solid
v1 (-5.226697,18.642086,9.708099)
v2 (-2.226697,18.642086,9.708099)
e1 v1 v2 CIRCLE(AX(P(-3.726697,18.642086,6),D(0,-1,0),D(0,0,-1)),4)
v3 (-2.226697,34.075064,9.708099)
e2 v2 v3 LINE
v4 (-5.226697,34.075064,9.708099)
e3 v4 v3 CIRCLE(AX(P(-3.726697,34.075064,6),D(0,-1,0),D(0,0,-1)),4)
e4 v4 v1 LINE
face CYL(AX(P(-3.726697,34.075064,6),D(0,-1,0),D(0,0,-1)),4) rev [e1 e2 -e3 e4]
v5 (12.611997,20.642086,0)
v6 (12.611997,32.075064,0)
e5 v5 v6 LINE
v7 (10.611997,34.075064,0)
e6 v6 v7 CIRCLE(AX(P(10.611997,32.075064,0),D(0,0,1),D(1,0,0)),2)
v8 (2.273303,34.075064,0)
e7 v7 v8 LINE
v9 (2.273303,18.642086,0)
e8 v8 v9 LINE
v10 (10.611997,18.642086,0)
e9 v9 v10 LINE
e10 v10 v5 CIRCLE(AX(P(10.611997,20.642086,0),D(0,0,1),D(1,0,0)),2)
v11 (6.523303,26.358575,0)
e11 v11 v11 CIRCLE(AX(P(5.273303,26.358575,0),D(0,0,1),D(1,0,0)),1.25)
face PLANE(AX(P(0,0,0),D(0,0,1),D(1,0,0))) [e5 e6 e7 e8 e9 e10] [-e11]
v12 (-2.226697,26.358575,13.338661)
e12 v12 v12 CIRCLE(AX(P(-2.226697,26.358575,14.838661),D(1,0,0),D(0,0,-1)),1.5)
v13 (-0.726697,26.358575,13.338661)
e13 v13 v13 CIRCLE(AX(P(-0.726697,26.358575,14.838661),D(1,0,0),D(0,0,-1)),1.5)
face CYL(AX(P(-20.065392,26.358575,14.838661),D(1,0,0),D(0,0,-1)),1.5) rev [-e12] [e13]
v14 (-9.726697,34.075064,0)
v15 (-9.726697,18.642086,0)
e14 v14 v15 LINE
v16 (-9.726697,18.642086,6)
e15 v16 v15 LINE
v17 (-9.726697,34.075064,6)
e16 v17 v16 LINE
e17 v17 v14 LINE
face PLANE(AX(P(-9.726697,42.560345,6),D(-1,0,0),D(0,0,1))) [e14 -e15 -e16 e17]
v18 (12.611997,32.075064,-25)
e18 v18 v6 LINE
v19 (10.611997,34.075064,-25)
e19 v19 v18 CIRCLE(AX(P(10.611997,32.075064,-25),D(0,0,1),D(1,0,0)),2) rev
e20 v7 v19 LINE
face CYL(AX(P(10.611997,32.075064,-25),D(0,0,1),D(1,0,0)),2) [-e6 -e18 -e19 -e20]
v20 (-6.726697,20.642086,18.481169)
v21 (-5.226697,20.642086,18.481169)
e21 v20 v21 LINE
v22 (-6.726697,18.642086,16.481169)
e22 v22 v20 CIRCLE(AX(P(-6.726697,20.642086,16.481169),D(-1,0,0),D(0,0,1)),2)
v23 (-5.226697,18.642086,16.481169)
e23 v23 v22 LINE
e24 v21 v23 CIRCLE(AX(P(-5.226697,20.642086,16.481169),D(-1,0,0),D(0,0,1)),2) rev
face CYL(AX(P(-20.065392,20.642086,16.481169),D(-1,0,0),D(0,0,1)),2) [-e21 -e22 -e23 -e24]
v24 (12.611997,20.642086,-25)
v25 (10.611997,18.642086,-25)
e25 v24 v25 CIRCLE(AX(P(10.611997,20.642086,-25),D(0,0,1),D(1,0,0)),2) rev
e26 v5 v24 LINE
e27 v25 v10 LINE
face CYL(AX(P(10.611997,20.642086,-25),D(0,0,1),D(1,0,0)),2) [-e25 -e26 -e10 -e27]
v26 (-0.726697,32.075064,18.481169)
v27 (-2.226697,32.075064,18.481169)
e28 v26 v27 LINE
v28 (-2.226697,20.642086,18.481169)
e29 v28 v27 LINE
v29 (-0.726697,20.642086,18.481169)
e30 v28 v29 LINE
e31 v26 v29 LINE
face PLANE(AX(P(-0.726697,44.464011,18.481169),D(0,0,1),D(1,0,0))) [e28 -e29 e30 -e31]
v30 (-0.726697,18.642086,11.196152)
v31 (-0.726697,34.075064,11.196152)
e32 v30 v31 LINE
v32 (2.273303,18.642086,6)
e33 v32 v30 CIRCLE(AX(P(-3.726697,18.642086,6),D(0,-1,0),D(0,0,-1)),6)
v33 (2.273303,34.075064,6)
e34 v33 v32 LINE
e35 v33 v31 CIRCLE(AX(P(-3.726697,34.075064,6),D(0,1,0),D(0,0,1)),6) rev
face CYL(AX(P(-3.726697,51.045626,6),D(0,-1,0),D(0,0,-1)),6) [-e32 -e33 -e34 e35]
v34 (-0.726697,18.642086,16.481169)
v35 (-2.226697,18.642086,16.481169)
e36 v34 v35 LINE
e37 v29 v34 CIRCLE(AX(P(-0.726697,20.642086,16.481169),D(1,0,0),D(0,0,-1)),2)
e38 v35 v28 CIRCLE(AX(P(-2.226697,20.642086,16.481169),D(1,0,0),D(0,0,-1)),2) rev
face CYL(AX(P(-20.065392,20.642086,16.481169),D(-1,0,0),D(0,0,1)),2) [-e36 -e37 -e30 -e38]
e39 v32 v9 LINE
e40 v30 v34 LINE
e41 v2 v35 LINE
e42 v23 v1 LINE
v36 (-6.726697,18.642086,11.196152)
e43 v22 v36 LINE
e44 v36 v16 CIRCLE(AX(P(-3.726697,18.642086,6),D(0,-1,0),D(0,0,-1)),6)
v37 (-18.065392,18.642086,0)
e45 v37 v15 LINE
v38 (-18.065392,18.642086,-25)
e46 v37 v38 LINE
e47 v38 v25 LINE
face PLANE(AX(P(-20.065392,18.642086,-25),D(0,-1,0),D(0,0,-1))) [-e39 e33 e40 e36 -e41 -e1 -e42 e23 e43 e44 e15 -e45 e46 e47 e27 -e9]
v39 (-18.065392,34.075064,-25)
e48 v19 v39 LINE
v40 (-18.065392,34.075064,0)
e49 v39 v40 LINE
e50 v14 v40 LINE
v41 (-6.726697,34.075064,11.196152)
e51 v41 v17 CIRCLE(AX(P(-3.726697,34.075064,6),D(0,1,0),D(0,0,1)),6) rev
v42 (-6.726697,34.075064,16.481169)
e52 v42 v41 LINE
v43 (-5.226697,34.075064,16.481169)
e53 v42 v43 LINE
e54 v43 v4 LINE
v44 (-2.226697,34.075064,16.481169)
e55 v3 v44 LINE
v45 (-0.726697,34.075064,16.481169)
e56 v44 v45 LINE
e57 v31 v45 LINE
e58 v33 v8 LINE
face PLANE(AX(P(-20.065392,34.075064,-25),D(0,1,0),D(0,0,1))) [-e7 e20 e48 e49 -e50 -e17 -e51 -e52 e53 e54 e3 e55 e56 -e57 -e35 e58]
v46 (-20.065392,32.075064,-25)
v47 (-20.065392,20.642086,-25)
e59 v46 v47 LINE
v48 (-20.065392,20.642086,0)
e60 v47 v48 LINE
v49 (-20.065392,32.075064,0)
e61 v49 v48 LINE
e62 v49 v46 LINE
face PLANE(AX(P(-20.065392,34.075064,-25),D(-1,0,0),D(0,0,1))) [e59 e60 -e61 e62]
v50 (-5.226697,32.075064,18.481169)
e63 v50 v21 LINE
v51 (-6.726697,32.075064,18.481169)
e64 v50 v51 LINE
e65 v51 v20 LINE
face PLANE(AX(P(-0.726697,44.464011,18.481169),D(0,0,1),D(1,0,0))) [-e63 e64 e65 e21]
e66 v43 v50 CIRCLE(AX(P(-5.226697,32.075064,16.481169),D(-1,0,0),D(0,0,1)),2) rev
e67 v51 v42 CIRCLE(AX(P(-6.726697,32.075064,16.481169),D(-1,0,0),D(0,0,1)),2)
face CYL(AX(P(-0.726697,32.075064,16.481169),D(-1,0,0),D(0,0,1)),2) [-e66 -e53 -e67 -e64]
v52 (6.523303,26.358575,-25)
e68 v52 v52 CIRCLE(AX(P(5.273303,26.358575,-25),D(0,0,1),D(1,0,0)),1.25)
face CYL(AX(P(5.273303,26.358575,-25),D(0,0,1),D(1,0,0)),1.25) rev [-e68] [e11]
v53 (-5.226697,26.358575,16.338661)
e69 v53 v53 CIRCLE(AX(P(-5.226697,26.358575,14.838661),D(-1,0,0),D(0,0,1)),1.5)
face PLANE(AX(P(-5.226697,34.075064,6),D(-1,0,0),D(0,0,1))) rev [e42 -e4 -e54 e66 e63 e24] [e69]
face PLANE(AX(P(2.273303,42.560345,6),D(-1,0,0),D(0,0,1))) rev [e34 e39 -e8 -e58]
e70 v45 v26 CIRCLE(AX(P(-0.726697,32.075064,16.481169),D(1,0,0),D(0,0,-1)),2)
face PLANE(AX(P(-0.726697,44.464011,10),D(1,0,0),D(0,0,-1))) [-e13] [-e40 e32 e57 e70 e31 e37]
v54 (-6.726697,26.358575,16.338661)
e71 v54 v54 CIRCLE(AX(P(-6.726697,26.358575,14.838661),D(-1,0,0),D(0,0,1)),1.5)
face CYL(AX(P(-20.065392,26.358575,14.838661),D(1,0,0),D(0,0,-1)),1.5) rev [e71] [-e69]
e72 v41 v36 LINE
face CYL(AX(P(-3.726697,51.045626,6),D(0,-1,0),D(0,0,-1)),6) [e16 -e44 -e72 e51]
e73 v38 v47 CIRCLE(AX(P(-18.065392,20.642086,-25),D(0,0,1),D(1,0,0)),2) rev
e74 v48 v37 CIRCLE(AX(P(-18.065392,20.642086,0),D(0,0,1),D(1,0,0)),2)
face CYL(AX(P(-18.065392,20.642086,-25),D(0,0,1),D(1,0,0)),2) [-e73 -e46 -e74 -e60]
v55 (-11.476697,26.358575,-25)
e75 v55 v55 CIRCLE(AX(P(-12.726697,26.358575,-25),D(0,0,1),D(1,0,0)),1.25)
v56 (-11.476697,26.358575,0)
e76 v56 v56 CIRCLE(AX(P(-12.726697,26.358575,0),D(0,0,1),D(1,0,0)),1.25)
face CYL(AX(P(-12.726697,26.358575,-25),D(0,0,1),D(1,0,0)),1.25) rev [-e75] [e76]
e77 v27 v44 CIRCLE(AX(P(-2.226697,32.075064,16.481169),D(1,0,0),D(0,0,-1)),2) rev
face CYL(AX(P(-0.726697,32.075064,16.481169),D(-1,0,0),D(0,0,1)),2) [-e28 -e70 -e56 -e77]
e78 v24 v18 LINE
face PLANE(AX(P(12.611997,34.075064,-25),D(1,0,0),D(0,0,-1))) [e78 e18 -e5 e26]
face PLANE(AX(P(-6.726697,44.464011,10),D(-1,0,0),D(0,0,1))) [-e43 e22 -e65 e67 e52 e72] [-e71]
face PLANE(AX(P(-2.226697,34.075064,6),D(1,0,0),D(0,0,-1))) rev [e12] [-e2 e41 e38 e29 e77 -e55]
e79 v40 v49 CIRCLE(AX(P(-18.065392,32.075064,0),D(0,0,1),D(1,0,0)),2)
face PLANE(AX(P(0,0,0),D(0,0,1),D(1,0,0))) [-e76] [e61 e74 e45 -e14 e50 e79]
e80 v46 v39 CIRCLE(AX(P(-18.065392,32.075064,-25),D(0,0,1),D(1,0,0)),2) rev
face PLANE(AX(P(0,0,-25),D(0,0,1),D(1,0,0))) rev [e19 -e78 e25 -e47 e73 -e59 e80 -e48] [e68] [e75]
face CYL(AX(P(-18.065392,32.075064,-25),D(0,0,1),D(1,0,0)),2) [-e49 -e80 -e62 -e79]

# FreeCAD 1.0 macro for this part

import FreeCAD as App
import Part
import Sketcher
from FreeCAD import Vector
Q = App.Units.Quantity


def edges_at(feature, points):
    """Names of the edges that pass closest to the given points."""
    edges = feature.Shape.Edges
    near = lambda p: min(range(len(edges)), key=lambda i: edges[i].distToShape(Part.Vertex(*p))[0])
    return sorted({f"Edge{near(p) + 1}" for p in points})

doc = App.newDocument("Part")
body = doc.addObject("PartDesign::Body", "Body")

sketch1 = body.newObject("Sketcher::SketchObject", "Sketch")
sketch1.AttachmentSupport = (doc.getObject("XY_Plane"), [""])
sketch1.MapMode = "FlatFace"
sketch1.addGeometry(Part.LineSegment(Vector(-20.065392, 34.075064, 0), Vector(-20.065392, 18.642086, 0)), False)
sketch1.addGeometry(Part.LineSegment(Vector(-20.065392, 18.642086, 0), Vector(12.611997, 18.642086, 0)), False)
sketch1.addGeometry(Part.LineSegment(Vector(12.611997, 18.642086, 0), Vector(12.611997, 34.075064, 0)), False)
sketch1.addGeometry(Part.LineSegment(Vector(12.611997, 34.075064, 0), Vector(-20.065392, 34.075064, 0)), False)
sketch1.addConstraint(Sketcher.Constraint("Coincident", 0, 2, 1, 1))
sketch1.addConstraint(Sketcher.Constraint("Coincident", 1, 2, 2, 1))
sketch1.addConstraint(Sketcher.Constraint("Coincident", 2, 2, 3, 1))
sketch1.addConstraint(Sketcher.Constraint("Coincident", 3, 2, 0, 1))
sketch1.addConstraint(Sketcher.Constraint("Vertical", 0))
sketch1.addConstraint(Sketcher.Constraint("Horizontal", 1))
sketch1.addConstraint(Sketcher.Constraint("Vertical", 2))
sketch1.addConstraint(Sketcher.Constraint("Horizontal", 3))
sketch1.addConstraint(Sketcher.Constraint("DistanceX", 1, 1, 1, 2, Q("32.677388 mm")))
sketch1.addConstraint(Sketcher.Constraint("DistanceY", 0, 2, 0, 1, Q("15.432978 mm")))
sketch1.addConstraint(Sketcher.Constraint("DistanceX", 0, 2, -1, 1, Q("20.065392 mm")))
sketch1.addConstraint(Sketcher.Constraint("DistanceY", -1, 1, 0, 2, Q("18.642086 mm")))
pad1 = body.newObject("PartDesign::Pad", "Pad")
pad1.Profile = sketch1
pad1.Length = 25
pad1.Reversed = True

sketch2 = body.newObject("Sketcher::SketchObject", "Sketch001")
sketch2.AttachmentSupport = (doc.getObject("XY_Plane"), [""])
sketch2.MapMode = "FlatFace"
sketch2.addGeometry(Part.Circle(Vector(-12.726697, 26.358575, 0), Vector(0, 0, 1), 1.25), False)
sketch2.addGeometry(Part.Circle(Vector(5.273303, 26.358575, 0), Vector(0, 0, 1), 1.25), False)
sketch2.addConstraint(Sketcher.Constraint("Equal", 0, 1))
sketch2.addConstraint(Sketcher.Constraint("Horizontal", 0, 3, 1, 3))
sketch2.addConstraint(Sketcher.Constraint("Diameter", 0, Q("2.5 mm")))
sketch2.addConstraint(Sketcher.Constraint("DistanceX", 0, 3, 1, 3, Q("18 mm")))
sketch2.addConstraint(Sketcher.Constraint("DistanceX", 0, 3, -1, 1, Q("12.726697 mm")))
sketch2.addConstraint(Sketcher.Constraint("DistanceY", -1, 1, 0, 3, Q("26.358575 mm")))
pocket1 = body.newObject("PartDesign::Pocket", "Pocket")
pocket1.Profile = sketch2
pocket1.Type = "ThroughAll"
body2 = doc.addObject("PartDesign::Body", "Body001")

sketch3 = body2.newObject("Sketcher::SketchObject", "Sketch002")
sketch3.AttachmentSupport = (doc.getObject("XZ_Plane001"), [""])
sketch3.MapMode = "FlatFace"
sketch3.AttachmentOffset = App.Placement(Vector(0, 0, -18.642086), App.Rotation())
sketch3.addGeometry(Part.Circle(Vector(-3.726697, 6, 0), Vector(0, 0, 1), 6), False)
sketch3.addConstraint(Sketcher.Constraint("Diameter", 0, Q("12 mm")))
sketch3.addConstraint(Sketcher.Constraint("DistanceY", -1, 1, 0, 3, Q("6 mm")))
sketch3.addConstraint(Sketcher.Constraint("DistanceX", 0, 3, -1, 1, Q("3.726697 mm")))
pad2 = body2.newObject("PartDesign::Pad", "Pad001")
pad2.Profile = sketch3
pad2.Length = 15.432978
pad2.Reversed = True

sketch4 = body2.newObject("Sketcher::SketchObject", "Sketch003")
sketch4.AttachmentSupport = (doc.getObject("XZ_Plane001"), [""])
sketch4.MapMode = "FlatFace"
sketch4.AttachmentOffset = App.Placement(Vector(0, 0, -18.642086), App.Rotation())
sketch4.addGeometry(Part.Circle(Vector(-3.726697, 6, 0), Vector(0, 0, 1), 4), False)
sketch4.addConstraint(Sketcher.Constraint("Diameter", 0, Q("8 mm")))
sketch4.addConstraint(Sketcher.Constraint("DistanceY", -1, 1, 0, 3, Q("6 mm")))
sketch4.addConstraint(Sketcher.Constraint("DistanceX", 0, 3, -1, 1, Q("3.726697 mm")))
pocket2 = body2.newObject("PartDesign::Pocket", "Pocket001")
pocket2.Profile = sketch4
pocket2.Type = "ThroughAll"
body.AllowCompound = True
doc.recompute()

boolean = body.newObject("PartDesign::Boolean", "Boolean")
boolean.Type = "Fuse"
boolean.addObjects([body2])

sketch5 = body.newObject("Sketcher::SketchObject", "Sketch004")
sketch5.AttachmentSupport = (doc.getObject("XZ_Plane"), [""])
sketch5.MapMode = "FlatFace"
sketch5.AttachmentOffset = App.Placement(Vector(0, 0, -18.642086), App.Rotation())
sketch5.addGeometry(Part.LineSegment(Vector(-3.726697, 0, 0), Vector(-9.726697, 6, 0)), False)
sketch5.addGeometry(Part.LineSegment(Vector(-9.726697, 6, 0), Vector(-9.726697, 0, 0)), False)
sketch5.addGeometry(Part.LineSegment(Vector(-9.726697, 0, 0), Vector(-3.726697, 0, 0)), False)
sketch5.addGeometry(Part.LineSegment(Vector(2.273303, 6, 0), Vector(-3.726697, 0, 0)), False)
sketch5.addGeometry(Part.LineSegment(Vector(-3.726697, 0, 0), Vector(2.273303, 0, 0)), False)
sketch5.addGeometry(Part.LineSegment(Vector(2.273303, 0, 0), Vector(2.273303, 6, 0)), False)
sketch5.addConstraint(Sketcher.Constraint("Coincident", 0, 2, 1, 1))
sketch5.addConstraint(Sketcher.Constraint("Coincident", 1, 2, 2, 1))
sketch5.addConstraint(Sketcher.Constraint("Coincident", 2, 2, 0, 1))
sketch5.addConstraint(Sketcher.Constraint("Coincident", 3, 2, 4, 1))
sketch5.addConstraint(Sketcher.Constraint("Coincident", 4, 2, 5, 1))
sketch5.addConstraint(Sketcher.Constraint("Coincident", 5, 2, 3, 1))
sketch5.addConstraint(Sketcher.Constraint("Vertical", 1))
sketch5.addConstraint(Sketcher.Constraint("Horizontal", 2))
sketch5.addConstraint(Sketcher.Constraint("Horizontal", 4))
sketch5.addConstraint(Sketcher.Constraint("Vertical", 5))
sketch5.addConstraint(Sketcher.Constraint("Coincident", 3, 2, 2, 2))
sketch5.addConstraint(Sketcher.Constraint("PointOnObject", 1, 2, -1))
sketch5.addConstraint(Sketcher.Constraint("Perpendicular", 0, 3))
sketch5.addConstraint(Sketcher.Constraint("Horizontal", 0, 2, 5, 2))
sketch5.addConstraint(Sketcher.Constraint("Equal", 2, 4))
sketch5.addConstraint(Sketcher.Constraint("DistanceX", 2, 1, 2, 2, Q("6 mm")))
sketch5.addConstraint(Sketcher.Constraint("DistanceX", 0, 2, -1, 1, Q("9.726697 mm")))
pad3 = body.newObject("PartDesign::Pad", "Pad002")
pad3.Profile = sketch5
pad3.Length = 15.432978
pad3.Reversed = True

sketch6 = body.newObject("Sketcher::SketchObject", "Sketch005")
sketch6.AttachmentSupport = (doc.getObject("XZ_Plane"), [""])
sketch6.MapMode = "FlatFace"
sketch6.AttachmentOffset = App.Placement(Vector(0, 0, -18.642086), App.Rotation())
sketch6.addGeometry(Part.LineSegment(Vector(-6.726697, 18.481169, 0), Vector(-6.726697, 10, 0)), False)
sketch6.addGeometry(Part.LineSegment(Vector(-6.726697, 10, 0), Vector(-0.726697, 10, 0)), False)
sketch6.addGeometry(Part.LineSegment(Vector(-0.726697, 10, 0), Vector(-0.726697, 18.481169, 0)), False)
sketch6.addGeometry(Part.LineSegment(Vector(-0.726697, 18.481169, 0), Vector(-6.726697, 18.481169, 0)), False)
sketch6.addConstraint(Sketcher.Constraint("Coincident", 0, 2, 1, 1))
sketch6.addConstraint(Sketcher.Constraint("Coincident", 1, 2, 2, 1))
sketch6.addConstraint(Sketcher.Constraint("Coincident", 2, 2, 3, 1))
sketch6.addConstraint(Sketcher.Constraint("Coincident", 3, 2, 0, 1))
sketch6.addConstraint(Sketcher.Constraint("Vertical", 0))
sketch6.addConstraint(Sketcher.Constraint("Horizontal", 1))
sketch6.addConstraint(Sketcher.Constraint("Vertical", 2))
sketch6.addConstraint(Sketcher.Constraint("Horizontal", 3))
sketch6.addConstraint(Sketcher.Constraint("DistanceX", 1, 1, 1, 2, Q("6 mm")))
sketch6.addConstraint(Sketcher.Constraint("DistanceY", -1, 1, 0, 2, Q("10 mm")))
sketch6.addConstraint(Sketcher.Constraint("DistanceY", 0, 2, 0, 1, Q("8.481169 mm")))
sketch6.addConstraint(Sketcher.Constraint("DistanceX", 0, 2, -1, 1, Q("6.726697 mm")))
pad4 = body.newObject("PartDesign::Pad", "Pad003")
pad4.Profile = sketch6
pad4.Length = 15.432978
pad4.Reversed = True

sketch7 = body.newObject("Sketcher::SketchObject", "Sketch006")
sketch7.AttachmentSupport = (doc.getObject("XZ_Plane"), [""])
sketch7.MapMode = "FlatFace"
sketch7.AttachmentOffset = App.Placement(Vector(0, 0, -18.642086), App.Rotation())
sketch7.addGeometry(Part.LineSegment(Vector(-5.226697, 31.378392, 0), Vector(-5.226697, 6, 0)), False)
sketch7.addGeometry(Part.LineSegment(Vector(-5.226697, 6, 0), Vector(-2.226697, 6, 0)), False)
sketch7.addGeometry(Part.LineSegment(Vector(-2.226697, 6, 0), Vector(-2.226697, 31.378392, 0)), False)
sketch7.addGeometry(Part.LineSegment(Vector(-2.226697, 31.378392, 0), Vector(-5.226697, 31.378392, 0)), False)
sketch7.addConstraint(Sketcher.Constraint("Coincident", 0, 2, 1, 1))
sketch7.addConstraint(Sketcher.Constraint("Coincident", 1, 2, 2, 1))
sketch7.addConstraint(Sketcher.Constraint("Coincident", 2, 2, 3, 1))
sketch7.addConstraint(Sketcher.Constraint("Coincident", 3, 2, 0, 1))
sketch7.addConstraint(Sketcher.Constraint("Vertical", 0))
sketch7.addConstraint(Sketcher.Constraint("Horizontal", 1))
sketch7.addConstraint(Sketcher.Constraint("Vertical", 2))
sketch7.addConstraint(Sketcher.Constraint("Horizontal", 3))
sketch7.addConstraint(Sketcher.Constraint("DistanceX", 1, 1, 1, 2, Q("3 mm")))
sketch7.addConstraint(Sketcher.Constraint("DistanceY", -1, 1, 0, 2, Q("6 mm")))
sketch7.addConstraint(Sketcher.Constraint("DistanceY", 0, 2, 0, 1, Q("25.378392 mm")))
sketch7.addConstraint(Sketcher.Constraint("DistanceX", 0, 2, -1, 1, Q("5.226697 mm")))
pocket3 = body.newObject("PartDesign::Pocket", "Pocket002")
pocket3.Profile = sketch7
pocket3.Type = "ThroughAll"

sketch8 = body.newObject("Sketcher::SketchObject", "Sketch007")
sketch8.AttachmentSupport = (doc.getObject("YZ_Plane"), [""])
sketch8.MapMode = "FlatFace"
sketch8.AttachmentOffset = App.Placement(Vector(0, 0, -0.726697), App.Rotation())
sketch8.addGeometry(Part.Circle(Vector(26.358575, 14.838661, 0), Vector(0, 0, 1), 1.5), False)
sketch8.addConstraint(Sketcher.Constraint("Diameter", 0, Q("3 mm")))
sketch8.addConstraint(Sketcher.Constraint("DistanceY", -1, 1, 0, 3, Q("14.838661 mm")))
sketch8.addConstraint(Sketcher.Constraint("DistanceX", -1, 1, 0, 3, Q("26.358575 mm")))
pocket4 = body.newObject("PartDesign::Pocket", "Pocket003")
pocket4.Profile = sketch8
pocket4.Type = "ThroughAll"
doc.recompute()

fillet = body.newObject("PartDesign::Fillet", "Fillet")
fillet.Base = (pocket4, edges_at(pocket4, [
    (12.612, 18.642, -12.5),
    (-20.065, 18.642, -12.5),
    (-20.065, 34.075, -12.5),
    (12.612, 34.075, -12.5),
]))
fillet.Radius = 2
doc.recompute()

fillet2 = body.newObject("PartDesign::Fillet", "Fillet001")
fillet2.Base = (fillet, edges_at(fillet, [
    (-1.477, 18.642, 18.481),
    (-1.477, 34.075, 18.481),
    (-5.977, 34.075, 18.481),
    (-5.977, 18.642, 18.481),
]))
fillet2.Radius = 2

doc.recompute()
